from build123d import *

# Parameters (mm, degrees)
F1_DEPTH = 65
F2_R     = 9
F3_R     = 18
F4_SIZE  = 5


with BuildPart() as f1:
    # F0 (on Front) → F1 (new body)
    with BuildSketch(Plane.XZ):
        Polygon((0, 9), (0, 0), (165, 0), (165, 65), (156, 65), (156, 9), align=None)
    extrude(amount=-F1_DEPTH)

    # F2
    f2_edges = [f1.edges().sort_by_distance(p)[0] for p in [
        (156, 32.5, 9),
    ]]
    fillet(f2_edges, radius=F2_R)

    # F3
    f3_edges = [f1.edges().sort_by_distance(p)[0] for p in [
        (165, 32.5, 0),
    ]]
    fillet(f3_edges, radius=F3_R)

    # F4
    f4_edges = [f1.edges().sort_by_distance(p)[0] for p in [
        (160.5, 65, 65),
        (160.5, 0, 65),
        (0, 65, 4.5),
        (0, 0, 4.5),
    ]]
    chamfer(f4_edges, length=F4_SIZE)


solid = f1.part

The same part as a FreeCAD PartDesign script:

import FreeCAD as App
import Part
import Sketcher

V = App.Vector
Q = App.Units.Quantity


def edges_at(feature, points):
    """Names of the edges that pass closest to the given points."""
    edges = feature.Shape.Edges
    near = lambda p: min(range(len(edges)), key=lambda i: edges[i].distToShape(Part.Vertex(*p))[0])
    return sorted({f"Edge{near(p) + 1}" for p in points})


def add_polygon(sketch, points):
    """Adds a closed chain of lines whose ends are joined by coincident constraints."""
    first, n = sketch.GeometryCount, len(points)
    for a, b in zip(points, points[1:] + points[:1]):
        sketch.addGeometry(Part.LineSegment(App.Vector(*a, 0), App.Vector(*b, 0)), False)
    for i in range(n):
        sketch.addConstraint(Sketcher.Constraint("Coincident", first + i, 2, first + (i + 1) % n, 1))

doc = App.newDocument("Part")
body = doc.addObject("PartDesign::Body", "Body")

# Sketch on XZ plane
sketch1 = body.newObject("Sketcher::SketchObject", "Sketch")
sketch1.AttachmentSupport = (doc.getObject("XZ_Plane"), [""])
sketch1.MapMode = "FlatFace"
add_polygon(sketch1, [(0, 9), (0, 0), (165, 0), (165, 65), (156, 65), (156, 9)])  # lines 0-5
sketch1.addConstraint([
    Sketcher.Constraint("Vertical", 0),
    Sketcher.Constraint("Horizontal", 1),
    Sketcher.Constraint("Vertical", 2),
    Sketcher.Constraint("Horizontal", 3),
    Sketcher.Constraint("Vertical", 4),
    Sketcher.Constraint("Horizontal", 5),
    Sketcher.Constraint("Coincident", 0, 2, -1, 1),
    Sketcher.Constraint("Equal", 3, 0),
    Sketcher.Constraint("DistanceX", 1, 1, 1, 2, Q("165 mm")),
    Sketcher.Constraint("DistanceX", 3, 2, 3, 1, Q("9 mm")),
    Sketcher.Constraint("DistanceY", 2, 1, 2, 2, Q("65 mm")),
])
pad1 = body.newObject("PartDesign::Pad", "Pad")
pad1.Profile = sketch1
pad1.Length = 65
pad1.Reversed = True
doc.recompute()

fillet = body.newObject("PartDesign::Fillet", "Fillet")
fillet.Base = (pad1, edges_at(pad1, [(156, 32.5, 9)]))
fillet.Radius = 9
doc.recompute()

fillet2 = body.newObject("PartDesign::Fillet", "Fillet001")
fillet2.Base = (fillet, edges_at(fillet, [(165, 32.5, 0)]))
fillet2.Radius = 18
doc.recompute()

chamfer = body.newObject("PartDesign::Chamfer", "Chamfer")
chamfer.Base = (fillet2, edges_at(fillet2, [
    (160.5, 65, 65),
    (160.5, 0, 65),
    (0, 65, 4.5),
    (0, 0, 4.5),
]))
chamfer.Size = 5

doc.recompute()
